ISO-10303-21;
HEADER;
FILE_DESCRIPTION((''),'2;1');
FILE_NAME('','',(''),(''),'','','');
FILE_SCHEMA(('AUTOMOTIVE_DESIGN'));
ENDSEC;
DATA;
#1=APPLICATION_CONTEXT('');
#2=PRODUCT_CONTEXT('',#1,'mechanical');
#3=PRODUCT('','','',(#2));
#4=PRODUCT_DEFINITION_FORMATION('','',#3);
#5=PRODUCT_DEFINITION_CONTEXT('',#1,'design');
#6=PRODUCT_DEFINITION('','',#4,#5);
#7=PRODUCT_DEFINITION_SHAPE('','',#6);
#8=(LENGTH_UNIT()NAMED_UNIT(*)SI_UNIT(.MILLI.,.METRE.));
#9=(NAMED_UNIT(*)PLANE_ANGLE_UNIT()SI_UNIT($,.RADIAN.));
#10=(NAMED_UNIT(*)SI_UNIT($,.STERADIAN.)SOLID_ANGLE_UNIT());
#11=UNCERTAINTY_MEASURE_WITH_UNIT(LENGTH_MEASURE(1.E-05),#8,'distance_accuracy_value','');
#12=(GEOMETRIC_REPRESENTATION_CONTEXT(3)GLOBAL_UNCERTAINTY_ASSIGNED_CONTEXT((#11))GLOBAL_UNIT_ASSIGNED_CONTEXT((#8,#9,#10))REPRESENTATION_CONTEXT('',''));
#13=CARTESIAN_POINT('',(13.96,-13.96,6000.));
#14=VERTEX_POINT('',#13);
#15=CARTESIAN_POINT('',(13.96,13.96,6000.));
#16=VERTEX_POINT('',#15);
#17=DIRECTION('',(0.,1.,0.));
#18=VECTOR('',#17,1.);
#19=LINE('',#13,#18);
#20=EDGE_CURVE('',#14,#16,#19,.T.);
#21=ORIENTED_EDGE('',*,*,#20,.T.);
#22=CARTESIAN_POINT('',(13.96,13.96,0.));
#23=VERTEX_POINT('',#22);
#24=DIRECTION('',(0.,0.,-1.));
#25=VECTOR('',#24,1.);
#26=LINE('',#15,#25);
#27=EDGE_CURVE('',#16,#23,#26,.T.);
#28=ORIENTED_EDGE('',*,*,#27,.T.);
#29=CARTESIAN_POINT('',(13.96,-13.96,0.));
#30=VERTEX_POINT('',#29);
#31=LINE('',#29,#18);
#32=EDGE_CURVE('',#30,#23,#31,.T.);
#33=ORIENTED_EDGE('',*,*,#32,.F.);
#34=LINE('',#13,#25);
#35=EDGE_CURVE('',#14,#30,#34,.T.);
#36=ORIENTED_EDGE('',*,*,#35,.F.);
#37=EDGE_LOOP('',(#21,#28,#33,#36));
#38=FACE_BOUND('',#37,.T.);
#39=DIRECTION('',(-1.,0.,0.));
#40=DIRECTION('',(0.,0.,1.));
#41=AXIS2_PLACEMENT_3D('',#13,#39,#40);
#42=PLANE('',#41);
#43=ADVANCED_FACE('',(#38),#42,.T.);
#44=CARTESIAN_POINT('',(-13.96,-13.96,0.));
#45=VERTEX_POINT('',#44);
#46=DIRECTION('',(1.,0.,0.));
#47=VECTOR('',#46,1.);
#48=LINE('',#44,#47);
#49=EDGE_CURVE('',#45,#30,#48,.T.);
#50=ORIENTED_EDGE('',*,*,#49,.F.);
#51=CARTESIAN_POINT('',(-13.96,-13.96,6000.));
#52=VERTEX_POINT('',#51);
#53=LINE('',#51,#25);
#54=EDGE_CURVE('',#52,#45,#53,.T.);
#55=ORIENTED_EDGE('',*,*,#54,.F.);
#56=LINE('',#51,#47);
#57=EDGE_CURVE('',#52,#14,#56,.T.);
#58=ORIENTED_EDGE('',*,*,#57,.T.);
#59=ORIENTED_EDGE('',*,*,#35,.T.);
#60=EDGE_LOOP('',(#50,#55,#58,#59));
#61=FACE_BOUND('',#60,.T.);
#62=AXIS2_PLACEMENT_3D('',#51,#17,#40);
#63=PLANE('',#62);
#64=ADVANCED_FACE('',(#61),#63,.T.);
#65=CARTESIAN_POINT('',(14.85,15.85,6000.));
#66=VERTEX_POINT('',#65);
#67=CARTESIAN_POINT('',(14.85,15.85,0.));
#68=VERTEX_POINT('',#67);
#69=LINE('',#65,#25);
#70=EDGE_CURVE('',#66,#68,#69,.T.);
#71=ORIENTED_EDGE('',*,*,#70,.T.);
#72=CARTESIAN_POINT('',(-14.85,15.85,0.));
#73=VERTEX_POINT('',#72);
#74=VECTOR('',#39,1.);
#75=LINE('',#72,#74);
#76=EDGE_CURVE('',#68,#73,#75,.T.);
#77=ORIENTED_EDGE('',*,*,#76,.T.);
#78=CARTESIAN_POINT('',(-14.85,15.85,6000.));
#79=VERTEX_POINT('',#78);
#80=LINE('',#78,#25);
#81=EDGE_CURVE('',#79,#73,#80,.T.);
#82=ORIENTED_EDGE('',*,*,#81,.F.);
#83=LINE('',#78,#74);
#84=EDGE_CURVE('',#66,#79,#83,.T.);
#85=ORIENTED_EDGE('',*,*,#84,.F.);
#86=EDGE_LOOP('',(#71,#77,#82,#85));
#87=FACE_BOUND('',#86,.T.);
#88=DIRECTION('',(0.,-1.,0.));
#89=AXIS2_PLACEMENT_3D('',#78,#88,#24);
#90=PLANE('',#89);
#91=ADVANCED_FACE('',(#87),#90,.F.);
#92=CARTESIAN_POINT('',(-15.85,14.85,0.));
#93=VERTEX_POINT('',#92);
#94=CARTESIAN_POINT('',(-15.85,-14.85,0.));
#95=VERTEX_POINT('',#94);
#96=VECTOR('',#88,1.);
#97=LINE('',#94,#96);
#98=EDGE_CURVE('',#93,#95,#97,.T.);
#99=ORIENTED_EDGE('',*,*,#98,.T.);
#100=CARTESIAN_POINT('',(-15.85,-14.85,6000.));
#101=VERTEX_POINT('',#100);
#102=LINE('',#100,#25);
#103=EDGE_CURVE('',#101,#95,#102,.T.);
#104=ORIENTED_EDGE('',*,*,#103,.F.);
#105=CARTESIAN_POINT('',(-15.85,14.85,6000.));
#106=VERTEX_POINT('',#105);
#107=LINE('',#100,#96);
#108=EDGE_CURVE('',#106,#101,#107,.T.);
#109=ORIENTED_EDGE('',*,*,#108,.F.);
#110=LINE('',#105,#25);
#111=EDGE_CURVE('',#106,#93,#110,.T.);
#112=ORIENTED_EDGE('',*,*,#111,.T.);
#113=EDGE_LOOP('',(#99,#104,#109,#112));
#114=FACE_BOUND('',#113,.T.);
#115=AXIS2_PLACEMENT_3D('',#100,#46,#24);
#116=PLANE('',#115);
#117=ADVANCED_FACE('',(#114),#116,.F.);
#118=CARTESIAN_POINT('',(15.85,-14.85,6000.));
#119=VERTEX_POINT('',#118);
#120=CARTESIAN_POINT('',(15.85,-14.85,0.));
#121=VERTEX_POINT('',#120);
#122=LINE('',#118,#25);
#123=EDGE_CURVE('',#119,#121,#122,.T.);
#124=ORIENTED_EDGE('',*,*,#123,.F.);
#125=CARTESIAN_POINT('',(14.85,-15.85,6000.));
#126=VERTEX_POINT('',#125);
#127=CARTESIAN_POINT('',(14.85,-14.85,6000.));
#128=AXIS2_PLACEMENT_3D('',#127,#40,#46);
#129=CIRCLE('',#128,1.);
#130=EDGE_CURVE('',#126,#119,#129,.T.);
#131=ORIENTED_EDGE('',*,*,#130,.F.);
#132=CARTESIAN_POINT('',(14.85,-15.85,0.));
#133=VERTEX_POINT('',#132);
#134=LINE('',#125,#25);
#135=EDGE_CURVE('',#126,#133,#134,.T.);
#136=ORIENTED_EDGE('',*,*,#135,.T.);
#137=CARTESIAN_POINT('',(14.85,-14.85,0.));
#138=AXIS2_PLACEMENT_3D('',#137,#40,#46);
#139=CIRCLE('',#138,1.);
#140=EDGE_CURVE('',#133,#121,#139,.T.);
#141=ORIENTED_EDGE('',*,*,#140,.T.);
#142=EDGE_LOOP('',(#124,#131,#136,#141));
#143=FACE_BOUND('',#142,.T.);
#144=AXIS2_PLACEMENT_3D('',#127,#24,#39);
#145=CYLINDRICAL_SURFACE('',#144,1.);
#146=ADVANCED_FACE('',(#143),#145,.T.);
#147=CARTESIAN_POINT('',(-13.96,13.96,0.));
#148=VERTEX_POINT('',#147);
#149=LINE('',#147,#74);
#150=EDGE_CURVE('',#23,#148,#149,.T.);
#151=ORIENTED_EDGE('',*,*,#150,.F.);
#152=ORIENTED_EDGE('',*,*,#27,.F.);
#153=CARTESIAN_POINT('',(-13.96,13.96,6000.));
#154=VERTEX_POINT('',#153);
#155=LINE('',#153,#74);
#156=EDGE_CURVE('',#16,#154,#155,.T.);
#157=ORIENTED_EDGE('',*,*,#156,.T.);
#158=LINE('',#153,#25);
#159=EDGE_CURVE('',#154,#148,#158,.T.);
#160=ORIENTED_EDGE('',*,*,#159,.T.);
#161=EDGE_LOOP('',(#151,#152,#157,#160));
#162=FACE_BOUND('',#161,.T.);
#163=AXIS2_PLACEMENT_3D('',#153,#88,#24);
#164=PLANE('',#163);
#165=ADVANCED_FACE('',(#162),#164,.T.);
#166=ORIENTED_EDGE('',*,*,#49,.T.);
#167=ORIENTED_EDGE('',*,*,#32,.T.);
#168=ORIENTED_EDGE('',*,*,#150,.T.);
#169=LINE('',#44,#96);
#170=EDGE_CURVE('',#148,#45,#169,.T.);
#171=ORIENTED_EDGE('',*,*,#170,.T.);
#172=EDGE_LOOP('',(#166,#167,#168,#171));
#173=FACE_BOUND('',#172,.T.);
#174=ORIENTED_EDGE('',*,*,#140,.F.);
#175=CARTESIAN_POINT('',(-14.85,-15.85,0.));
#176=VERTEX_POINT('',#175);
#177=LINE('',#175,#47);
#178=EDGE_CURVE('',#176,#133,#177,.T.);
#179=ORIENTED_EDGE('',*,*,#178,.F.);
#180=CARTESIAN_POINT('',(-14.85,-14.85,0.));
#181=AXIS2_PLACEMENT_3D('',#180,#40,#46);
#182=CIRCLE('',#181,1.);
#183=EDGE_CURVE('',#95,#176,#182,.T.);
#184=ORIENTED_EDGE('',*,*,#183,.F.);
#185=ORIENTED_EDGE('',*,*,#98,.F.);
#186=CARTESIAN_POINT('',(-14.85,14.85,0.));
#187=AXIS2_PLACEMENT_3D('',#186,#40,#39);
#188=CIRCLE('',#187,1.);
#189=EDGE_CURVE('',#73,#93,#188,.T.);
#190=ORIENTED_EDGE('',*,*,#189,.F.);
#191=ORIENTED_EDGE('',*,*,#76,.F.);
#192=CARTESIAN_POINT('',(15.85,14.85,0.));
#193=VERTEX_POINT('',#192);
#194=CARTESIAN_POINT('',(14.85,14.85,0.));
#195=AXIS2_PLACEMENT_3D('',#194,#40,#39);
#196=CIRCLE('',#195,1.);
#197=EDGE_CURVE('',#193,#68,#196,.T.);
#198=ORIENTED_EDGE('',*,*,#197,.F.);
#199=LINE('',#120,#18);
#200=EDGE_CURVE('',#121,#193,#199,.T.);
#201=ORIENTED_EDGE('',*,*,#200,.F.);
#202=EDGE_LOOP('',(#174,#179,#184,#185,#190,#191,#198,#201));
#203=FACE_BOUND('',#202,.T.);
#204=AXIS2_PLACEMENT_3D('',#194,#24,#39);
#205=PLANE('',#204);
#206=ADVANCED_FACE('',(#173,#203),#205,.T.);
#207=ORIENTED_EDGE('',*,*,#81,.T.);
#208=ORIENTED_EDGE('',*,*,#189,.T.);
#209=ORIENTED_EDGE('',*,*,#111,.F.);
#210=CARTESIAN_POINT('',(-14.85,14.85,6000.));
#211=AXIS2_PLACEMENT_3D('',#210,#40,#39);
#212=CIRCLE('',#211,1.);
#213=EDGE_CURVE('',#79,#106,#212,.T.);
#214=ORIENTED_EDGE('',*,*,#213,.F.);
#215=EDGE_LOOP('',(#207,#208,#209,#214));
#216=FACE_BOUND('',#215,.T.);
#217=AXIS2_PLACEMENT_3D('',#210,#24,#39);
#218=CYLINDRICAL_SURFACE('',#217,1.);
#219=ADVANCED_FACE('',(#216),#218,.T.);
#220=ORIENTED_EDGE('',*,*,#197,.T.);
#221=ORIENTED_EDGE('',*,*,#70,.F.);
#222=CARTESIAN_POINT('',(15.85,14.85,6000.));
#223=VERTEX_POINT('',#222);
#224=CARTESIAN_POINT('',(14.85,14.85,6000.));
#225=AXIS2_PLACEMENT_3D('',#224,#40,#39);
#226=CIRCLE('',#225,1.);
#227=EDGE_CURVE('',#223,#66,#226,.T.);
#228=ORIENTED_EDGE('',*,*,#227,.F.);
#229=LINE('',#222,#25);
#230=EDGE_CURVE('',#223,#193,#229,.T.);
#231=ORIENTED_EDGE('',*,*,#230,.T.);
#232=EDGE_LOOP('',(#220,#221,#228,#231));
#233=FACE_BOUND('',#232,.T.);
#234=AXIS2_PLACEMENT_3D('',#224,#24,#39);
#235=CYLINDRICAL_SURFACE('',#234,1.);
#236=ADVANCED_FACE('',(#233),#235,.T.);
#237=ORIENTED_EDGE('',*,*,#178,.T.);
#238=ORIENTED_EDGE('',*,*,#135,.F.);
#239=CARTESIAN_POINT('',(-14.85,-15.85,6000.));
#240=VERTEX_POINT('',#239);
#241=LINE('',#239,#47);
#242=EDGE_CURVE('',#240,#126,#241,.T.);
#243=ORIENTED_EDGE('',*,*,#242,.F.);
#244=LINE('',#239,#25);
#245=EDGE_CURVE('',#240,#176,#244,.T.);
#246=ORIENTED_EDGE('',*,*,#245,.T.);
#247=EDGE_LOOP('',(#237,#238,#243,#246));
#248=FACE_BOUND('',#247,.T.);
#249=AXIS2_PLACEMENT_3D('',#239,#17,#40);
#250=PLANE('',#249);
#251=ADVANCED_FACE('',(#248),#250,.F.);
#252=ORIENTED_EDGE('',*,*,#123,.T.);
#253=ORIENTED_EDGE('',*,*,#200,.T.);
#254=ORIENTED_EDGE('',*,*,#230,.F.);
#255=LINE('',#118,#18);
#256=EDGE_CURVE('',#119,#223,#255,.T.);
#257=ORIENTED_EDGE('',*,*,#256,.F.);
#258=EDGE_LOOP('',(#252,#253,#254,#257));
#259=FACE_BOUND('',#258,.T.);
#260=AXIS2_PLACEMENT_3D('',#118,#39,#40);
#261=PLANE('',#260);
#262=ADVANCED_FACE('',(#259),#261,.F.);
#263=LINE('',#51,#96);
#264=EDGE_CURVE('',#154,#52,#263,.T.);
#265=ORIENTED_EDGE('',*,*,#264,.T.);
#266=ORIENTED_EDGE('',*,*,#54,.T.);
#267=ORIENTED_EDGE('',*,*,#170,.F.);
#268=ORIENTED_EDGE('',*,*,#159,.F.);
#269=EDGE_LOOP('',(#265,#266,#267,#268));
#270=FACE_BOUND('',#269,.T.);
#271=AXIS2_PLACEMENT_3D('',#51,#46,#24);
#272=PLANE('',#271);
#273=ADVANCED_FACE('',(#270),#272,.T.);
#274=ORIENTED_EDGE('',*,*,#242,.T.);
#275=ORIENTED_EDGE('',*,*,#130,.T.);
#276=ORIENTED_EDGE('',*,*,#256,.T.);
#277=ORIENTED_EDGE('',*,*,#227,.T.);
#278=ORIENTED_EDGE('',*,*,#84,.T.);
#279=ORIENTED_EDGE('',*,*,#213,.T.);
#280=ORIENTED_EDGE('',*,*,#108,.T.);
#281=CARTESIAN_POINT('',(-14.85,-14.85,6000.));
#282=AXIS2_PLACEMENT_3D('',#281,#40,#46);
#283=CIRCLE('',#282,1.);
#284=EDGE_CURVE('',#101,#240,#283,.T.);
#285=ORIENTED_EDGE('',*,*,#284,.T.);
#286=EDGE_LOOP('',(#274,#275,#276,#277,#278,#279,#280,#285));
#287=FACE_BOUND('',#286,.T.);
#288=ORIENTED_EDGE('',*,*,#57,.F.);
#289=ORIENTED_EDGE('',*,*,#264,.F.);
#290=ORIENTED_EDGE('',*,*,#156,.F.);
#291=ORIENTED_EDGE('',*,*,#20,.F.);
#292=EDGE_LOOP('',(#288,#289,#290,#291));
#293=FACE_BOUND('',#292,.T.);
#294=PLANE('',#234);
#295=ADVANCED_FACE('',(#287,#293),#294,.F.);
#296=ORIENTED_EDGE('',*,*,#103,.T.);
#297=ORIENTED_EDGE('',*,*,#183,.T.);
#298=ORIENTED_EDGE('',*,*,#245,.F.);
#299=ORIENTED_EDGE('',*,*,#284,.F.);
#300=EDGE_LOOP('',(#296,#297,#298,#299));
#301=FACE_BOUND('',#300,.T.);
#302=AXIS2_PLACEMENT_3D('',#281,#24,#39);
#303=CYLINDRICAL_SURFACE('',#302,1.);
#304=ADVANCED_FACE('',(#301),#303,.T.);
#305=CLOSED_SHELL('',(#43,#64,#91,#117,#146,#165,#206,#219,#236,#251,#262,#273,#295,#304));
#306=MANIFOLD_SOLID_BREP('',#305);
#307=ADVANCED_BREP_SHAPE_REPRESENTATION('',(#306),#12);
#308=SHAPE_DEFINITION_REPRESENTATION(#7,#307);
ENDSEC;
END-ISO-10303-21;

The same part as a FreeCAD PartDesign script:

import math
import FreeCAD as App
import Part
import Sketcher
from FreeCAD import Vector
Q = App.Units.Quantity

doc = App.newDocument("Part")
body = doc.addObject("PartDesign::Body", "Body")

sketch1 = body.newObject("Sketcher::SketchObject", "Sketch")
sketch1.AttachmentSupport = (doc.getObject("XY_Plane"), [""])
sketch1.MapMode = "FlatFace"
sketch1.addGeometry([
    Part.LineSegment(Vector(-14.85, -15.85, 0), Vector(14.85, -15.85, 0)),
    Part.ArcOfCircle(Part.Circle(Vector(14.85, -14.85, 0), Vector(0, 0, 1), 1), math.radians(-90), math.radians(0)),
    Part.LineSegment(Vector(15.85, -14.85, 0), Vector(15.85, 14.85, 0)),
    Part.ArcOfCircle(Part.Circle(Vector(14.85, 14.85, 0), Vector(0, 0, 1), 1), math.radians(0), math.radians(90)),
    Part.LineSegment(Vector(14.85, 15.85, 0), Vector(-14.85, 15.85, 0)),
    Part.ArcOfCircle(Part.Circle(Vector(-14.85, 14.85, 0), Vector(0, 0, 1), 1), math.radians(90), math.radians(180)),
    Part.LineSegment(Vector(-15.85, 14.85, 0), Vector(-15.85, -14.85, 0)),
    Part.ArcOfCircle(Part.Circle(Vector(-14.85, -14.85, 0), Vector(0, 0, 1), 1), math.radians(-180), math.radians(-90)),
    Part.LineSegment(Vector(13.96, -13.96, 0), Vector(-13.96, -13.96, 0)),
    Part.LineSegment(Vector(-13.96, -13.96, 0), Vector(-13.96, 13.96, 0)),
    Part.LineSegment(Vector(-13.96, 13.96, 0), Vector(13.96, 13.96, 0)),
    Part.LineSegment(Vector(13.96, 13.96, 0), Vector(13.96, -13.96, 0)),
], False)
sketch1.addConstraint([
    Sketcher.Constraint("Tangent", 0, 2, 1, 1),
    Sketcher.Constraint("Tangent", 1, 2, 2, 1),
    Sketcher.Constraint("Tangent", 2, 2, 3, 1),
    Sketcher.Constraint("Tangent", 3, 2, 4, 1),
    Sketcher.Constraint("Tangent", 4, 2, 5, 1),
    Sketcher.Constraint("Tangent", 5, 2, 6, 1),
    Sketcher.Constraint("Tangent", 6, 2, 7, 1),
    Sketcher.Constraint("Tangent", 7, 2, 0, 1),
    Sketcher.Constraint("Coincident", 8, 2, 9, 1),
    Sketcher.Constraint("Coincident", 9, 2, 10, 1),
    Sketcher.Constraint("Coincident", 10, 2, 11, 1),
    Sketcher.Constraint("Coincident", 11, 2, 8, 1),
    Sketcher.Constraint("Horizontal", 0),
    Sketcher.Constraint("Vertical", 2),
    Sketcher.Constraint("Horizontal", 4),
    Sketcher.Constraint("Vertical", 6),
    Sketcher.Constraint("Horizontal", 8),
    Sketcher.Constraint("Vertical", 9),
    Sketcher.Constraint("Horizontal", 10),
    Sketcher.Constraint("Vertical", 11),
    Sketcher.Constraint("Equal", 1, 3),
    Sketcher.Constraint("Equal", 3, 5),
    Sketcher.Constraint("Equal", 5, 7),
    Sketcher.Constraint("Symmetric", 1, 3, 5, 3, -1, 1),
    Sketcher.Constraint("Symmetric", 8, 2, 10, 2, -1, 1),
    Sketcher.Constraint("Equal", 4, 2),
    Sketcher.Constraint("Equal", 10, 9),
    Sketcher.Constraint("Radius", 1, Q("1 mm")),
    Sketcher.Constraint("DistanceX", 0, 1, 0, 2, Q("29.7 mm")),
    Sketcher.Constraint("DistanceX", 8, 2, 8, 1, Q("27.92 mm")),
])
pad1 = body.newObject("PartDesign::Pad", "Pad")
pad1.Profile = sketch1
pad1.Length = 6000

doc.recompute()
